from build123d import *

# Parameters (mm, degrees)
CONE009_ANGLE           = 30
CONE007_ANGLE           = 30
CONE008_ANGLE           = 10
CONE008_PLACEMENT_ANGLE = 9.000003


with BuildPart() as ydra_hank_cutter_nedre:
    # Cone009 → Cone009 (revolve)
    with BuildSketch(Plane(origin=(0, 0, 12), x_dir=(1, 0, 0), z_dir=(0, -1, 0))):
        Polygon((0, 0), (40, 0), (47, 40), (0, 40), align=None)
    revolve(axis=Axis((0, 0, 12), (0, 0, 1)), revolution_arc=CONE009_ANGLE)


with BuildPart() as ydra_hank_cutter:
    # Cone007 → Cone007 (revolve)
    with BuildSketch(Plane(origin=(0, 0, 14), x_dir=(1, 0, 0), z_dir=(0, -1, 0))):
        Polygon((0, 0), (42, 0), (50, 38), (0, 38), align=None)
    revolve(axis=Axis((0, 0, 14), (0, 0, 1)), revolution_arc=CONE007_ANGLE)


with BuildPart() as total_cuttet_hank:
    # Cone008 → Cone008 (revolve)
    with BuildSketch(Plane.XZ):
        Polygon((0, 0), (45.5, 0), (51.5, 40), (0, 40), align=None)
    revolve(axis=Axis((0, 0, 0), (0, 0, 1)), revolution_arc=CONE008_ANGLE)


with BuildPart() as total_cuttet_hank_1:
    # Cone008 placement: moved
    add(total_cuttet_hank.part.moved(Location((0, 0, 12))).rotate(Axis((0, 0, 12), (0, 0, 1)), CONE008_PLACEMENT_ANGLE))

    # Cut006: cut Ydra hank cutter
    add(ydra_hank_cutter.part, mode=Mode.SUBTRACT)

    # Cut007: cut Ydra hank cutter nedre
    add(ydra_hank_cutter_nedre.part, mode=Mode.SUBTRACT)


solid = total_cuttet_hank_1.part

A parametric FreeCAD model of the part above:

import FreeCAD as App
import Part
import Sketcher
from FreeCAD import Vector


def add_polygon(sketch, points):
    """Adds a closed chain of lines whose ends are joined by coincident constraints."""
    first, n = sketch.GeometryCount, len(points)
    for a, b in zip(points, points[1:] + points[:1]):
        sketch.addGeometry(Part.LineSegment(App.Vector(*a, 0), App.Vector(*b, 0)), False)
    for i in range(n):
        sketch.addConstraint(Sketcher.Constraint("Coincident", first + i, 2, first + (i + 1) % n, 1))

doc = App.newDocument("Part")
body = doc.addObject("PartDesign::Body", "Body")

# Sketch on XZ plane
sketch1 = body.newObject("Sketcher::SketchObject", "Sketch")
sketch1.AttachmentSupport = (doc.getObject("XZ_Plane"), [""])
sketch1.MapMode = "FlatFace"
add_polygon(sketch1, [(0, 12), (40, 12), (47, 52), (0, 52)])  # lines 0-3
sketch1.addConstraint(Sketcher.Constraint("Horizontal", 0))
sketch1.addConstraint(Sketcher.Constraint("Horizontal", 2))
sketch1.addConstraint(Sketcher.Constraint("Vertical", 3))
sketch1.addConstraint(Sketcher.Constraint("PointOnObject", 2, 2, -2))
sketch1.addConstraint(Sketcher.Constraint("Equal", 0, 3))
sketch1.addConstraint(Sketcher.Constraint("DistanceX", 0, 1, 0, 2, 40.0))
sketch1.addConstraint(Sketcher.Constraint("DistanceX", 2, 2, 2, 1, 47.0))
sketch1.addConstraint(Sketcher.Constraint("DistanceY", -1, 1, 0, 2, 12.0))
revolution = body.newObject("PartDesign::Revolution", "Revolution")
revolution.Profile = sketch1
revolution.ReferenceAxis = (sketch1, ["V_Axis"])
revolution.Angle = 30
body2 = doc.addObject("PartDesign::Body", "Body001")

# Sketch on XZ plane
sketch2 = body2.newObject("Sketcher::SketchObject", "Sketch001")
sketch2.AttachmentSupport = (doc.getObject("XZ_Plane001"), [""])
sketch2.MapMode = "FlatFace"
add_polygon(sketch2, [(0, 14), (42, 14), (50, 52), (0, 52)])  # lines 0-3
sketch2.addConstraint(Sketcher.Constraint("Horizontal", 0))
sketch2.addConstraint(Sketcher.Constraint("Horizontal", 2))
sketch2.addConstraint(Sketcher.Constraint("Vertical", 3))
sketch2.addConstraint(Sketcher.Constraint("PointOnObject", 2, 2, -2))
sketch2.addConstraint(Sketcher.Constraint("DistanceX", 0, 1, 0, 2, 42.0))
sketch2.addConstraint(Sketcher.Constraint("DistanceX", 2, 2, 2, 1, 50.0))
sketch2.addConstraint(Sketcher.Constraint("DistanceY", 3, 2, 3, 1, 38.0))
sketch2.addConstraint(Sketcher.Constraint("DistanceY", -1, 1, 0, 2, 14.0))
revolution2 = body2.newObject("PartDesign::Revolution", "Revolution001")
revolution2.Profile = sketch2
revolution2.ReferenceAxis = (sketch2, ["V_Axis"])
revolution2.Angle = 30
body3 = doc.addObject("PartDesign::Body", "Body002")

# Sketch on XZ plane
sketch3 = body3.newObject("Sketcher::SketchObject", "Sketch002")
sketch3.AttachmentSupport = (doc.getObject("XZ_Plane002"), [""])
sketch3.MapMode = "FlatFace"
add_polygon(sketch3, [(0, 0), (45.5, 0), (51.5, 40), (0, 40)])  # lines 0-3
sketch3.addConstraint(Sketcher.Constraint("Horizontal", 0))
sketch3.addConstraint(Sketcher.Constraint("Horizontal", 2))
sketch3.addConstraint(Sketcher.Constraint("Vertical", 3))
sketch3.addConstraint(Sketcher.Constraint("Coincident", 3, 2, -1, 1))
sketch3.addConstraint(Sketcher.Constraint("DistanceY", 3, 2, 3, 1, 40.0))
sketch3.addConstraint(Sketcher.Constraint("DistanceX", 0, 1, 0, 2, 45.5))
sketch3.addConstraint(Sketcher.Constraint("DistanceX", 2, 2, 2, 1, 51.5))
revolution3 = body3.newObject("PartDesign::Revolution", "Revolution002")
revolution3.Profile = sketch3
revolution3.ReferenceAxis = (sketch3, ["V_Axis"])
revolution3.Angle = 10
body4 = doc.addObject("PartDesign::Body", "Body003")
doc.recompute()

body3.Placement = App.Placement(Vector(0, 0, 12), App.Rotation(Vector(0, 0, 1), 9.000003))
boolean = body4.newObject("PartDesign::Boolean", "Boolean")
boolean.Type = "Fuse"
boolean.addObjects([body3])
doc.recompute()

boolean2 = body4.newObject("PartDesign::Boolean", "Boolean001")
boolean2.Type = "Cut"
boolean2.addObjects([body2])
doc.recompute()

boolean3 = body4.newObject("PartDesign::Boolean", "Boolean002")
boolean3.Type = "Cut"
boolean3.addObjects([body])

doc.recompute()
